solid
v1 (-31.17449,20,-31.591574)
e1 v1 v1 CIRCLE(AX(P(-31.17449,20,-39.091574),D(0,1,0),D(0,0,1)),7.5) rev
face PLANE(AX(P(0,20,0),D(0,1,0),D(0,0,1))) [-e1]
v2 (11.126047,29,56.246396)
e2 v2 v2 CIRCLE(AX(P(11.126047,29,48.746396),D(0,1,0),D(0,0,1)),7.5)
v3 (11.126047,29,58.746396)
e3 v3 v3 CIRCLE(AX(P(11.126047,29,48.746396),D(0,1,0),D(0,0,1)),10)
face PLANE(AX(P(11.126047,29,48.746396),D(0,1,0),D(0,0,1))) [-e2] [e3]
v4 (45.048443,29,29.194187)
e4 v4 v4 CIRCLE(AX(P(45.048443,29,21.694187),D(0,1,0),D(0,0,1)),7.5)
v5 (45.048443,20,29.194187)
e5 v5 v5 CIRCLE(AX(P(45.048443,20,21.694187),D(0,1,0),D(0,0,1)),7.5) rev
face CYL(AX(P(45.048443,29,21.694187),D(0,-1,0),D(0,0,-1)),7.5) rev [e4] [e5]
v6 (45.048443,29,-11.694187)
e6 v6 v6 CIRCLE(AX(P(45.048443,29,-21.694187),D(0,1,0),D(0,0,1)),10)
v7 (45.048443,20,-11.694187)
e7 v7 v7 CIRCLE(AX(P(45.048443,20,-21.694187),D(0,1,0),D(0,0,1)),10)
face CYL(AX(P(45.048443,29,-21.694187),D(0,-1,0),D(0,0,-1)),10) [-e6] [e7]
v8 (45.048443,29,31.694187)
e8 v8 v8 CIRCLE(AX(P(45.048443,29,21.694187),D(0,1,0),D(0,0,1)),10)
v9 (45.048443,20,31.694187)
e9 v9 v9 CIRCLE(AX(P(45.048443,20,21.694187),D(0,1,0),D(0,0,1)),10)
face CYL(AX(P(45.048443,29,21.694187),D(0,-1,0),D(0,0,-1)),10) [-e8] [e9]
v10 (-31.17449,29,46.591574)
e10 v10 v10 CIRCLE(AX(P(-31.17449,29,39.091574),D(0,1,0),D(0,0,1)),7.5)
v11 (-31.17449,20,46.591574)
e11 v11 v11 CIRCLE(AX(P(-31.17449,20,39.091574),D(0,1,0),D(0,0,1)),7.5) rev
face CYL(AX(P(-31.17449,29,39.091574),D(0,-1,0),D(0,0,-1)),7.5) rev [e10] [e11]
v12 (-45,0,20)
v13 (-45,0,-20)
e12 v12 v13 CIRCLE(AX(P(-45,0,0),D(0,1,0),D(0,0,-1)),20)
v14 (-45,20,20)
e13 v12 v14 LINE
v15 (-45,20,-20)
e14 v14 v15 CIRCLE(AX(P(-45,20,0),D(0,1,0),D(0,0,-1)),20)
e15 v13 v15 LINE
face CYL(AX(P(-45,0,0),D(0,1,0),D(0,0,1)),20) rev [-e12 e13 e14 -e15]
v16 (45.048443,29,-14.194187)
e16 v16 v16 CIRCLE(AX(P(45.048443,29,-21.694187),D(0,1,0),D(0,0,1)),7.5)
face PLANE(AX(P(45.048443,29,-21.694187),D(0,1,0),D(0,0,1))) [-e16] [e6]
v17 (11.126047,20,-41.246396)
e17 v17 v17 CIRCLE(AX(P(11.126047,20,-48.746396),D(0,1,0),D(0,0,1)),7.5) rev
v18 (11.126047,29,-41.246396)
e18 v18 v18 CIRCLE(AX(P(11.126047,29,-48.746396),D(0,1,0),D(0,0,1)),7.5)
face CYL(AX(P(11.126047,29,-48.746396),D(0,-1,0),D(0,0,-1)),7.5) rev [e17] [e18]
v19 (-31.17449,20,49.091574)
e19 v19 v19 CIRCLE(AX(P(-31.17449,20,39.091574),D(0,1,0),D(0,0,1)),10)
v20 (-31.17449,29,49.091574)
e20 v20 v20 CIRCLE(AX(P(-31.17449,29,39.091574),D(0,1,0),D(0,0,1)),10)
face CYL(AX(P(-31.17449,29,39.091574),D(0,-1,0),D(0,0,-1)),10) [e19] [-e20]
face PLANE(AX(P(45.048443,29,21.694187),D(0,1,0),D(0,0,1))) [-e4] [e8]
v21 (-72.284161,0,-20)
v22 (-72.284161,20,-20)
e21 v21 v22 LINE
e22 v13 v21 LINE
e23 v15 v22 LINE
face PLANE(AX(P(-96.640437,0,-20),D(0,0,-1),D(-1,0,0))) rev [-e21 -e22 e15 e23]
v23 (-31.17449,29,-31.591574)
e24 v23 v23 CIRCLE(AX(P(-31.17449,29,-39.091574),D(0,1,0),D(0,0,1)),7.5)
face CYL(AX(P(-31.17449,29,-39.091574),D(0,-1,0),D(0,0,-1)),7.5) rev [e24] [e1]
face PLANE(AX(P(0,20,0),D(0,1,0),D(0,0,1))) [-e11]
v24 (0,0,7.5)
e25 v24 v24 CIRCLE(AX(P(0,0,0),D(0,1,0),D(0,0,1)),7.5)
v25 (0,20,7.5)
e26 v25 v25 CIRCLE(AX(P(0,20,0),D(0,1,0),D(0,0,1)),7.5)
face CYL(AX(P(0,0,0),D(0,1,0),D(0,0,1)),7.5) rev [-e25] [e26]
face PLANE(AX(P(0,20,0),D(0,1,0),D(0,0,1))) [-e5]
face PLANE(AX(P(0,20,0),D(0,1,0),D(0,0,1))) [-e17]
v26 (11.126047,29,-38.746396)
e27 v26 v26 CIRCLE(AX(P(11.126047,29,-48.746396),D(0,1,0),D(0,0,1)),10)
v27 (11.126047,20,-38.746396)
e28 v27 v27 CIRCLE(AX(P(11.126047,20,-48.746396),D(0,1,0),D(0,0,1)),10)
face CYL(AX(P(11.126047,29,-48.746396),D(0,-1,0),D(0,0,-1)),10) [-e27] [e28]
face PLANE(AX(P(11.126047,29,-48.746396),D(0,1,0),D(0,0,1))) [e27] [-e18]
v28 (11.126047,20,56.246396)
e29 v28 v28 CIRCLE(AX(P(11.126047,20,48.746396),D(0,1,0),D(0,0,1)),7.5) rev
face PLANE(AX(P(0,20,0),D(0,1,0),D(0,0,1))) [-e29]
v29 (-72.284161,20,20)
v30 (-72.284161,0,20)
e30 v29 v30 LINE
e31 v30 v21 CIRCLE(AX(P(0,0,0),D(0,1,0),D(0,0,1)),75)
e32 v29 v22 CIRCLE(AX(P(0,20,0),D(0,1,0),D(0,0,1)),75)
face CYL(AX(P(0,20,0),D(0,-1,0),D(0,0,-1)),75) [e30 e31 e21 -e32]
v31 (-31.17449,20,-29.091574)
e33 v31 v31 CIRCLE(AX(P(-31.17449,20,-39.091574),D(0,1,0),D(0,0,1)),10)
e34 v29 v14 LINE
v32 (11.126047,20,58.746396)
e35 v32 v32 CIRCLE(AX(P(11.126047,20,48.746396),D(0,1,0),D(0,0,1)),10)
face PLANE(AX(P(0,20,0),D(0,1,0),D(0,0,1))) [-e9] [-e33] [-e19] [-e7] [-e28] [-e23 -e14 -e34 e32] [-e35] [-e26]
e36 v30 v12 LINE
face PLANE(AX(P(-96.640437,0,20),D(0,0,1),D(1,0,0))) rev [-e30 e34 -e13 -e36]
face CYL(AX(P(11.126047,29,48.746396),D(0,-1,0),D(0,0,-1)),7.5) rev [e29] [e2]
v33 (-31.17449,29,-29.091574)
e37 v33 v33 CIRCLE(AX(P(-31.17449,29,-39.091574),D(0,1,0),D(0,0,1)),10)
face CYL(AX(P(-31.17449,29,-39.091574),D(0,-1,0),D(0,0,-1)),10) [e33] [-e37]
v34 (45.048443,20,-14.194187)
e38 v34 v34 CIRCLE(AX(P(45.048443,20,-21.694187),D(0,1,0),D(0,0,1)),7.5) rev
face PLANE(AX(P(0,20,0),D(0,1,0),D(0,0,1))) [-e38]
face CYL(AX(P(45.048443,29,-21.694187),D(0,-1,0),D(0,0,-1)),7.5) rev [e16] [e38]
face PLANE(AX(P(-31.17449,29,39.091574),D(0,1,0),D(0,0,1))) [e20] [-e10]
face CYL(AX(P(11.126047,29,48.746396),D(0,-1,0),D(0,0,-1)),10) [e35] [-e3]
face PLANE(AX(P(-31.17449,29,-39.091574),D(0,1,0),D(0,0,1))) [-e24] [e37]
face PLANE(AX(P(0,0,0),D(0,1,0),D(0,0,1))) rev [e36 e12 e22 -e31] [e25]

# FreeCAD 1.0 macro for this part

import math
import FreeCAD as App
import Part
import Sketcher

V = App.Vector

doc = App.newDocument("Part")
body = doc.addObject("PartDesign::Body", "Body")
body.AllowCompound = True

# Sketch on XZ plane
sketch1 = doc.addObject("Sketcher::SketchObject", "Sketch")
body.addObject(sketch1)
sketch1.AttachmentSupport = (doc.XZ_Plane, [""])
sketch1.MapMode = "FlatFace"
sketch1.addGeometry(Part.Circle(V(0, 0, 0), V(0, 0, 1), 75), False)
sketch1.addConstraint([
    Sketcher.Constraint("Coincident", 0, 3, -1, 1),
    Sketcher.Constraint("Diameter", 0, 150.0),
])
pad1 = doc.addObject("PartDesign::Pad", "Pad")
body.addObject(pad1)
pad1.Profile = sketch1
pad1.Length = 20
pad1.Reversed = True

# Sketch on XZ plane
sketch2 = doc.addObject("Sketcher::SketchObject", "Sketch001")
body.addObject(sketch2)
sketch2.AttachmentSupport = (doc.XZ_Plane, [""])
sketch2.MapMode = "FlatFace"
sketch2.AttachmentOffset = App.Placement(V(0, 0, -20), App.Rotation())
sketch2.addGeometry([
    Part.Circle(V(-50, 0, 0), V(0, 0, 1), 10),  # 0
    Part.Circle(V(-50, 0, 0), V(0, 0, 1), 7.5),  # 1
    Part.Circle(V(-31.17449, -39.091574, 0), V(0, 0, 1), 10),  # 2
    Part.Circle(V(-31.17449, -39.091574, 0), V(0, 0, 1), 7.5),  # 3
    Part.Circle(V(11.126047, -48.746396, 0), V(0, 0, 1), 10),  # 4
    Part.Circle(V(11.126047, -48.746396, 0), V(0, 0, 1), 7.5),  # 5
    Part.Circle(V(45.048443, -21.694187, 0), V(0, 0, 1), 10),  # 6
    Part.Circle(V(45.048443, -21.694187, 0), V(0, 0, 1), 7.5),  # 7
    Part.Circle(V(45.048443, 21.694187, 0), V(0, 0, 1), 10),  # 8
    Part.Circle(V(45.048443, 21.694187, 0), V(0, 0, 1), 7.5),  # 9
    Part.Circle(V(11.126047, 48.746396, 0), V(0, 0, 1), 10),  # 10
    Part.Circle(V(11.126047, 48.746396, 0), V(0, 0, 1), 7.5),  # 11
    Part.Circle(V(-31.17449, 39.091574, 0), V(0, 0, 1), 10),  # 12
    Part.Circle(V(-31.17449, 39.091574, 0), V(0, 0, 1), 7.5),  # 13
], False)
sketch2.addConstraint([
    Sketcher.Constraint("Coincident", 1, 3, 0, 3),
    Sketcher.Constraint("Coincident", 3, 3, 2, 3),
    Sketcher.Constraint("Coincident", 5, 3, 4, 3),
    Sketcher.Constraint("Coincident", 7, 3, 6, 3),
    Sketcher.Constraint("Coincident", 9, 3, 8, 3),
    Sketcher.Constraint("Coincident", 11, 3, 10, 3),
    Sketcher.Constraint("Coincident", 13, 3, 12, 3),
    Sketcher.Constraint("Equal", 0, 2),
    Sketcher.Constraint("Equal", 1, 3),
    Sketcher.Constraint("Equal", 2, 4),
    Sketcher.Constraint("Equal", 3, 5),
    Sketcher.Constraint("Equal", 4, 6),
    Sketcher.Constraint("Equal", 5, 7),
    Sketcher.Constraint("Equal", 6, 8),
    Sketcher.Constraint("Equal", 7, 9),
    Sketcher.Constraint("Equal", 8, 10),
    Sketcher.Constraint("Equal", 9, 11),
    Sketcher.Constraint("Equal", 10, 12),
    Sketcher.Constraint("Equal", 11, 13),
    Sketcher.Constraint("Symmetric", 6, 3, 8, 3, -1),
    Sketcher.Constraint("Symmetric", 4, 3, 10, 3, -1),
    Sketcher.Constraint("Symmetric", 2, 3, 12, 3, -1),
    Sketcher.Constraint("PointOnObject", 0, 3, -1),
    Sketcher.Constraint("Diameter", 0, 20.0),
    Sketcher.Constraint("Diameter", 1, 15.0),
    Sketcher.Constraint("DistanceX", 0, 3, -1, 1, 50.0),
    Sketcher.Constraint("DistanceX", 2, 3, -1, 1, 31.17449),
    Sketcher.Constraint("DistanceY", 4, 3, 2, 3, 9.654821),
    Sketcher.Constraint("DistanceY", 4, 3, 6, 3, 27.052209),
    Sketcher.Constraint("DistanceY", 2, 3, 8, 3, 60.785761),
    Sketcher.Constraint("DistanceX", -1, 1, 4, 3, 11.126047),
    Sketcher.Constraint("DistanceX", -1, 1, 6, 3, 45.048443),
])
pad2 = doc.addObject("PartDesign::Pad", "Pad001")
body.addObject(pad2)
pad2.Profile = sketch2
pad2.Length = 9
pad2.Reversed = True

# Sketch on XZ plane
sketch3 = doc.addObject("Sketcher::SketchObject", "Sketch002")
body.addObject(sketch3)
sketch3.AttachmentSupport = (doc.XZ_Plane, [""])
sketch3.MapMode = "FlatFace"
sketch3.AttachmentOffset = App.Placement(V(0, 0, -20), App.Rotation())
sketch3.addGeometry([
    Part.Circle(V(0, 0, 0), V(0, 0, 1), 7.5),  # 0
    Part.LineSegment(V(-45, -20, 0), V(-96.640437, -20, 0)),  # 1
    Part.LineSegment(V(-96.640437, -20, 0), V(-96.640437, 20, 0)),  # 2
    Part.LineSegment(V(-96.640437, 20, 0), V(-45, 20, 0)),  # 3
    Part.ArcOfCircle(Part.Circle(V(-45, 0, 0), V(0, 0, 1), 20), math.radians(-90), math.radians(90)),  # 4
], False)
sketch3.addConstraint([
    Sketcher.Constraint("Coincident", 1, 2, 2, 1),
    Sketcher.Constraint("Coincident", 2, 2, 3, 1),
    Sketcher.Constraint("Tangent", 3, 2, 4, 2),
    Sketcher.Constraint("Tangent", 4, 1, 1, 1),
    Sketcher.Constraint("Horizontal", 1),
    Sketcher.Constraint("Vertical", 2),
    Sketcher.Constraint("Horizontal", 3),
    Sketcher.Constraint("Coincident", 0, 3, -1, 1),
    Sketcher.Constraint("PointOnObject", 4, 3, -1),
    Sketcher.Constraint("Diameter", 0, 15.0),
    Sketcher.Constraint("Radius", 4, 20.0),
    Sketcher.Constraint("DistanceX", 4, 3, -1, 1, 45.0),
    Sketcher.Constraint("DistanceX", 1, 2, 1, 1, 51.640437),
])
pocket1 = doc.addObject("PartDesign::Pocket", "Pocket")
body.addObject(pocket1)
pocket1.Profile = sketch3
pocket1.Length = 20
pocket1.Reversed = True

# Sketch on XZ plane
sketch4 = doc.addObject("Sketcher::SketchObject", "Sketch003")
body.addObject(sketch4)
sketch4.AttachmentSupport = (doc.XZ_Plane, [""])
sketch4.MapMode = "FlatFace"
sketch4.addGeometry(Part.Circle(V(-50, 0, 0), V(0, 0, 1), 15.621868), False)
sketch4.addConstraint([
    Sketcher.Constraint("PointOnObject", 0, 3, -1),
    Sketcher.Constraint("DistanceX", 0, 3, -1, 1, 50.0),
    Sketcher.Constraint("Diameter", 0, 31.243736),
])
pocket2 = doc.addObject("PartDesign::Pocket", "Pocket001")
body.addObject(pocket2)
pocket2.Profile = sketch4
pocket2.Length = 60

doc.recompute()
